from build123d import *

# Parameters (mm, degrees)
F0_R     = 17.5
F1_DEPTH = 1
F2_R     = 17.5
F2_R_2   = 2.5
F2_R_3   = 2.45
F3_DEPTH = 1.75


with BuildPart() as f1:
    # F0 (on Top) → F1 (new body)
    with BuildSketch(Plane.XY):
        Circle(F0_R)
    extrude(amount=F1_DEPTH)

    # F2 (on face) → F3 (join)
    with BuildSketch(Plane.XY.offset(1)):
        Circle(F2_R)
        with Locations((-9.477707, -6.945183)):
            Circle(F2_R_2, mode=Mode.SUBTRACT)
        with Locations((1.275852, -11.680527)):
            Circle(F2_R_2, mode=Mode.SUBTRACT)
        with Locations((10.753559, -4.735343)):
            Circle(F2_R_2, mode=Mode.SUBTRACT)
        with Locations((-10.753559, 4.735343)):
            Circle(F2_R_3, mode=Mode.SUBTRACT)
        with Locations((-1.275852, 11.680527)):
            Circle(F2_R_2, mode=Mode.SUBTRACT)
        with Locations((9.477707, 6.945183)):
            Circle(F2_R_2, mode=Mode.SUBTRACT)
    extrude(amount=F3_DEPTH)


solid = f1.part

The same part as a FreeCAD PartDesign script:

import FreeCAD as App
import Part
import Sketcher

V = App.Vector
Q = App.Units.Quantity

doc = App.newDocument("Part")
body = doc.addObject("PartDesign::Body", "Body")

sketch1 = doc.addObject("Sketcher::SketchObject", "Sketch")
body.addObject(sketch1)
sketch1.AttachmentSupport = (doc.XY_Plane, [""])
sketch1.MapMode = "FlatFace"
sketch1.addGeometry(Part.Circle(V(0, 0, 0), V(0, 0, 1), 17.5), False)
sketch1.addConstraint([
    Sketcher.Constraint("Coincident", 0, 3, -1, 1),
    Sketcher.Constraint("Diameter", 0, Q("35 mm")),
])
pad1 = doc.addObject("PartDesign::Pad", "Pad")
body.addObject(pad1)
pad1.Profile = sketch1
pad1.Length = 1

sketch2 = doc.addObject("Sketcher::SketchObject", "Sketch001")
body.addObject(sketch2)
sketch2.AttachmentSupport = (doc.XY_Plane, [""])
sketch2.MapMode = "FlatFace"
sketch2.AttachmentOffset = App.Placement(V(0, 0, 1), App.Rotation())
sketch2.addGeometry([
    Part.Circle(V(0, 0, 0), V(0, 0, 1), 17.5),
    Part.Circle(V(-9.477707, -6.945183, 0), V(0, 0, 1), 2.5),
    Part.Circle(V(1.275852, -11.680527, 0), V(0, 0, 1), 2.5),
    Part.Circle(V(10.753559, -4.735343, 0), V(0, 0, 1), 2.5),
    Part.Circle(V(-10.753559, 4.735343, 0), V(0, 0, 1), 2.45),
    Part.Circle(V(-1.275852, 11.680527, 0), V(0, 0, 1), 2.5),
    Part.Circle(V(9.477707, 6.945183, 0), V(0, 0, 1), 2.5),
], False)
sketch2.addConstraint([
    Sketcher.Constraint("Coincident", 0, 3, -1, 1),
    Sketcher.Constraint("Equal", 1, 2),
    Sketcher.Constraint("Equal", 2, 3),
    Sketcher.Constraint("Equal", 3, 5),
    Sketcher.Constraint("Equal", 5, 6),
    Sketcher.Constraint("Symmetric", 3, 3, 4, 3, -1, 1),
    Sketcher.Constraint("Symmetric", 2, 3, 5, 3, -1, 1),
    Sketcher.Constraint("Symmetric", 1, 3, 6, 3, -1, 1),
    Sketcher.Constraint("Diameter", 0, Q("35 mm")),
    Sketcher.Constraint("Diameter", 1, Q("5 mm")),
    Sketcher.Constraint("Diameter", 4, Q("4.9 mm")),
    Sketcher.Constraint("DistanceX", -1, 1, 3, 3, Q("10.753559 mm")),
    Sketcher.Constraint("DistanceX", 1, 3, 2, 3, Q("10.753559 mm")),
    Sketcher.Constraint("DistanceY", 1, 3, 3, 3, Q("2.20984 mm")),
    Sketcher.Constraint("DistanceX", 4, 3, 1, 3, Q("1.275852 mm")),
    Sketcher.Constraint("DistanceY", 2, 3, 4, 3, Q("16.41587 mm")),
    Sketcher.Constraint("DistanceY", 1, 3, -1, 1, Q("6.945183 mm")),
])
pad2 = doc.addObject("PartDesign::Pad", "Pad001")
body.addObject(pad2)
pad2.Profile = sketch2
pad2.Length = 1.75

doc.recompute()
